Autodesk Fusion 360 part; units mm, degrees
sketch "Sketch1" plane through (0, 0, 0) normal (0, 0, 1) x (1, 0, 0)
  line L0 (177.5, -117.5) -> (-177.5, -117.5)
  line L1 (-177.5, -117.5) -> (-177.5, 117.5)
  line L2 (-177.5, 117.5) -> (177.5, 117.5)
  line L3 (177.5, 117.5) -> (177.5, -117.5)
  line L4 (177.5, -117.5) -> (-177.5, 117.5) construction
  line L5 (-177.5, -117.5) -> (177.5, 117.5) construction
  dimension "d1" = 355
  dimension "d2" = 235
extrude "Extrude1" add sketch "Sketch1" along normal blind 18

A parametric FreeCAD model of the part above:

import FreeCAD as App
import Part
import Sketcher

V = App.Vector
Q = App.Units.Quantity


def add_polygon(sketch, points):
    """Adds a closed chain of lines whose ends are joined by coincident constraints."""
    first, n = sketch.GeometryCount, len(points)
    for a, b in zip(points, points[1:] + points[:1]):
        sketch.addGeometry(Part.LineSegment(App.Vector(*a, 0), App.Vector(*b, 0)), False)
    for i in range(n):
        sketch.addConstraint(Sketcher.Constraint("Coincident", first + i, 2, first + (i + 1) % n, 1))

doc = App.newDocument("Part")
body = doc.addObject("PartDesign::Body", "Body")

sketch1 = body.newObject("Sketcher::SketchObject", "Sketch")
sketch1.AttachmentSupport = (doc.getObject("XY_Plane"), [""])
sketch1.MapMode = "FlatFace"
add_polygon(sketch1, [(-178, -118), (178, -118), (178, 118), (-178, 118)])
sketch1.addConstraint([
    Sketcher.Constraint("Horizontal", 0),
    Sketcher.Constraint("Vertical", 1),
    Sketcher.Constraint("Horizontal", 2),
    Sketcher.Constraint("Vertical", 3),
    Sketcher.Constraint("Symmetric", 0, 2, 2, 2, -1, 1),
    Sketcher.Constraint("DistanceX", 0, 1, 0, 2, Q("355 mm")),
    Sketcher.Constraint("DistanceY", 1, 1, 1, 2, Q("235 mm")),
])
pad1 = body.newObject("PartDesign::Pad", "Pad")
pad1.Profile = sketch1
pad1.Length = 18

doc.recompute()
